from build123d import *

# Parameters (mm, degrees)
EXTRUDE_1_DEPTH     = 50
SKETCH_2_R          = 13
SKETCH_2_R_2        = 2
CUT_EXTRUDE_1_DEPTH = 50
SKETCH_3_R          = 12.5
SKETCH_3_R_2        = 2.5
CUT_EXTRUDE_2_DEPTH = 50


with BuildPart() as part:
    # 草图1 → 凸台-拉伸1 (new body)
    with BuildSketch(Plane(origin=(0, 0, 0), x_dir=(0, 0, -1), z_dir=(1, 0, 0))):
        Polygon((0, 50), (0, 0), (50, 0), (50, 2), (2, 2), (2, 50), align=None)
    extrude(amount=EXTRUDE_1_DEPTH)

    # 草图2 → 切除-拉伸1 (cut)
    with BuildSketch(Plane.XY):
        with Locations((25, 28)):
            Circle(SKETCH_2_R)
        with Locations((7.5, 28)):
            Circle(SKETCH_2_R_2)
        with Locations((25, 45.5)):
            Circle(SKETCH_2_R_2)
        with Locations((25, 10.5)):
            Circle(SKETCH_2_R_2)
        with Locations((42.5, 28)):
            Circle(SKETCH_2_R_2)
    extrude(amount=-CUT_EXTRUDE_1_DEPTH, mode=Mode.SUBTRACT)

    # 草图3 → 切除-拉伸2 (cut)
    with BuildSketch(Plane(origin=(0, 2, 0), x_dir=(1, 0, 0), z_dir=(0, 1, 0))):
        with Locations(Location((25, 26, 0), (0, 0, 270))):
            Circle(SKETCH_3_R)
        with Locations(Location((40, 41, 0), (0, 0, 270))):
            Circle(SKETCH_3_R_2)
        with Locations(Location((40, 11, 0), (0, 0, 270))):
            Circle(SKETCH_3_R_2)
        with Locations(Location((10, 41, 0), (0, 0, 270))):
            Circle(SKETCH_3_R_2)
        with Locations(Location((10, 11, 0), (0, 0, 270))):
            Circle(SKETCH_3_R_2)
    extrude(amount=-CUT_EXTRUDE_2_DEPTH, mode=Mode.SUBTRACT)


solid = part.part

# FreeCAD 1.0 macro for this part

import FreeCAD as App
import Part
import Sketcher
from FreeCAD import Vector
Q = App.Units.Quantity

doc = App.newDocument("Part")
body = doc.addObject("PartDesign::Body", "Body")

# Sketch on YZ plane
sketch1 = doc.addObject("Sketcher::SketchObject", "Sketch")
body.addObject(sketch1)
sketch1.AttachmentSupport = (doc.YZ_Plane, [""])
sketch1.MapMode = "FlatFace"
sketch1.addGeometry([
    Part.LineSegment(Vector(50, 0, 0), Vector(0, 0, 0)),  # 0
    Part.LineSegment(Vector(0, 0, 0), Vector(0, -50, 0)),  # 1
    Part.LineSegment(Vector(0, -50, 0), Vector(2, -50, 0)),  # 2
    Part.LineSegment(Vector(2, -50, 0), Vector(2, -2, 0)),  # 3
    Part.LineSegment(Vector(2, -2, 0), Vector(50, -2, 0)),  # 4
    Part.LineSegment(Vector(50, -2, 0), Vector(50, 0, 0)),  # 5
], False)
sketch1.addConstraint([
    Sketcher.Constraint("Coincident", 0, 2, 1, 1),
    Sketcher.Constraint("Coincident", 1, 2, 2, 1),
    Sketcher.Constraint("Coincident", 2, 2, 3, 1),
    Sketcher.Constraint("Coincident", 3, 2, 4, 1),
    Sketcher.Constraint("Coincident", 4, 2, 5, 1),
    Sketcher.Constraint("Coincident", 5, 2, 0, 1),
    Sketcher.Constraint("Horizontal", 0),
    Sketcher.Constraint("Vertical", 1),
    Sketcher.Constraint("Horizontal", 2),
    Sketcher.Constraint("Vertical", 3),
    Sketcher.Constraint("Horizontal", 4),
    Sketcher.Constraint("Vertical", 5),
    Sketcher.Constraint("Coincident", 0, 2, -1, 1),
    Sketcher.Constraint("Equal", 0, 1),
    Sketcher.Constraint("Equal", 4, 3),
    Sketcher.Constraint("DistanceX", 0, 2, 0, 1, Q("50 mm")),
    Sketcher.Constraint("DistanceX", 2, 1, 2, 2, Q("2 mm")),
])
pad1 = doc.addObject("PartDesign::Pad", "Pad")
body.addObject(pad1)
pad1.Profile = sketch1
pad1.Length = 50

# Sketch on XY plane
sketch2 = doc.addObject("Sketcher::SketchObject", "Sketch001")
body.addObject(sketch2)
sketch2.AttachmentSupport = (doc.XY_Plane, [""])
sketch2.MapMode = "FlatFace"
sketch2.addGeometry([
    Part.Circle(Vector(25, 28, 0), Vector(0, 0, 1), 13),  # 0
    Part.Circle(Vector(7.5, 28, 0), Vector(0, 0, 1), 2),  # 1
    Part.Circle(Vector(25, 45.5, 0), Vector(0, 0, 1), 2),  # 2
    Part.Circle(Vector(25, 10.5, 0), Vector(0, 0, 1), 2),  # 3
    Part.Circle(Vector(42.5, 28, 0), Vector(0, 0, 1), 2),  # 4
], False)
sketch2.addConstraint([
    Sketcher.Constraint("Equal", 1, 2),
    Sketcher.Constraint("Equal", 2, 3),
    Sketcher.Constraint("Equal", 3, 4),
    Sketcher.Constraint("Horizontal", 0, 3, 1, 3),
    Sketcher.Constraint("Horizontal", 1, 3, 4, 3),
    Sketcher.Constraint("Vertical", 0, 3, 2, 3),
    Sketcher.Constraint("Vertical", 2, 3, 3, 3),
    Sketcher.Constraint("Diameter", 0, Q("26 mm")),
    Sketcher.Constraint("Diameter", 1, Q("4 mm")),
    Sketcher.Constraint("DistanceX", -1, 1, 0, 3, Q("25 mm")),
    Sketcher.Constraint("DistanceY", -1, 1, 0, 3, Q("28 mm")),
    Sketcher.Constraint("DistanceY", 3, 3, 2, 3, Q("35 mm")),
    Sketcher.Constraint("DistanceX", 1, 3, 4, 3, Q("35 mm")),
    Sketcher.Constraint("DistanceX", -1, 1, 1, 3, Q("7.5 mm")),
    Sketcher.Constraint("DistanceY", -1, 1, 2, 3, Q("45.5 mm")),
])
pocket1 = doc.addObject("PartDesign::Pocket", "Pocket")
body.addObject(pocket1)
pocket1.Profile = sketch2
pocket1.Length = 50

# Sketch on XZ plane
sketch3 = doc.addObject("Sketcher::SketchObject", "Sketch002")
body.addObject(sketch3)
sketch3.AttachmentSupport = (doc.XZ_Plane, [""])
sketch3.MapMode = "FlatFace"
sketch3.AttachmentOffset = App.Placement(Vector(0, 0, -2), App.Rotation())
sketch3.addGeometry([
    Part.Circle(Vector(25, -26, 0), Vector(0, 0, 1), 12.5),  # 0
    Part.Circle(Vector(40, -41, 0), Vector(0, 0, 1), 2.5),  # 1
    Part.Circle(Vector(40, -11, 0), Vector(0, 0, 1), 2.5),  # 2
    Part.Circle(Vector(10, -41, 0), Vector(0, 0, 1), 2.5),  # 3
    Part.Circle(Vector(10, -11, 0), Vector(0, 0, 1), 2.5),  # 4
], False)
sketch3.addConstraint([
    Sketcher.Constraint("Equal", 1, 2),
    Sketcher.Constraint("Equal", 2, 3),
    Sketcher.Constraint("Equal", 3, 4),
    Sketcher.Constraint("Horizontal", 1, 3, 3, 3),
    Sketcher.Constraint("Horizontal", 2, 3, 4, 3),
    Sketcher.Constraint("Vertical", 1, 3, 2, 3),
    Sketcher.Constraint("Vertical", 3, 3, 4, 3),
    Sketcher.Constraint("Diameter", 0, Q("25 mm")),
    Sketcher.Constraint("Diameter", 1, Q("5 mm")),
    Sketcher.Constraint("DistanceX", -1, 1, 0, 3, Q("25 mm")),
    Sketcher.Constraint("DistanceY", 0, 3, -1, 1, Q("26 mm")),
    Sketcher.Constraint("DistanceX", -1, 1, 1, 3, Q("40 mm")),
    Sketcher.Constraint("DistanceY", 1, 3, -1, 1, Q("41 mm")),
    Sketcher.Constraint("DistanceY", 2, 3, -1, 1, Q("11 mm")),
    Sketcher.Constraint("DistanceX", -1, 1, 3, 3, Q("10 mm")),
])
pocket2 = doc.addObject("PartDesign::Pocket", "Pocket001")
body.addObject(pocket2)
pocket2.Profile = sketch3
pocket2.Length = 50
pocket2.Reversed = True

doc.recompute()
